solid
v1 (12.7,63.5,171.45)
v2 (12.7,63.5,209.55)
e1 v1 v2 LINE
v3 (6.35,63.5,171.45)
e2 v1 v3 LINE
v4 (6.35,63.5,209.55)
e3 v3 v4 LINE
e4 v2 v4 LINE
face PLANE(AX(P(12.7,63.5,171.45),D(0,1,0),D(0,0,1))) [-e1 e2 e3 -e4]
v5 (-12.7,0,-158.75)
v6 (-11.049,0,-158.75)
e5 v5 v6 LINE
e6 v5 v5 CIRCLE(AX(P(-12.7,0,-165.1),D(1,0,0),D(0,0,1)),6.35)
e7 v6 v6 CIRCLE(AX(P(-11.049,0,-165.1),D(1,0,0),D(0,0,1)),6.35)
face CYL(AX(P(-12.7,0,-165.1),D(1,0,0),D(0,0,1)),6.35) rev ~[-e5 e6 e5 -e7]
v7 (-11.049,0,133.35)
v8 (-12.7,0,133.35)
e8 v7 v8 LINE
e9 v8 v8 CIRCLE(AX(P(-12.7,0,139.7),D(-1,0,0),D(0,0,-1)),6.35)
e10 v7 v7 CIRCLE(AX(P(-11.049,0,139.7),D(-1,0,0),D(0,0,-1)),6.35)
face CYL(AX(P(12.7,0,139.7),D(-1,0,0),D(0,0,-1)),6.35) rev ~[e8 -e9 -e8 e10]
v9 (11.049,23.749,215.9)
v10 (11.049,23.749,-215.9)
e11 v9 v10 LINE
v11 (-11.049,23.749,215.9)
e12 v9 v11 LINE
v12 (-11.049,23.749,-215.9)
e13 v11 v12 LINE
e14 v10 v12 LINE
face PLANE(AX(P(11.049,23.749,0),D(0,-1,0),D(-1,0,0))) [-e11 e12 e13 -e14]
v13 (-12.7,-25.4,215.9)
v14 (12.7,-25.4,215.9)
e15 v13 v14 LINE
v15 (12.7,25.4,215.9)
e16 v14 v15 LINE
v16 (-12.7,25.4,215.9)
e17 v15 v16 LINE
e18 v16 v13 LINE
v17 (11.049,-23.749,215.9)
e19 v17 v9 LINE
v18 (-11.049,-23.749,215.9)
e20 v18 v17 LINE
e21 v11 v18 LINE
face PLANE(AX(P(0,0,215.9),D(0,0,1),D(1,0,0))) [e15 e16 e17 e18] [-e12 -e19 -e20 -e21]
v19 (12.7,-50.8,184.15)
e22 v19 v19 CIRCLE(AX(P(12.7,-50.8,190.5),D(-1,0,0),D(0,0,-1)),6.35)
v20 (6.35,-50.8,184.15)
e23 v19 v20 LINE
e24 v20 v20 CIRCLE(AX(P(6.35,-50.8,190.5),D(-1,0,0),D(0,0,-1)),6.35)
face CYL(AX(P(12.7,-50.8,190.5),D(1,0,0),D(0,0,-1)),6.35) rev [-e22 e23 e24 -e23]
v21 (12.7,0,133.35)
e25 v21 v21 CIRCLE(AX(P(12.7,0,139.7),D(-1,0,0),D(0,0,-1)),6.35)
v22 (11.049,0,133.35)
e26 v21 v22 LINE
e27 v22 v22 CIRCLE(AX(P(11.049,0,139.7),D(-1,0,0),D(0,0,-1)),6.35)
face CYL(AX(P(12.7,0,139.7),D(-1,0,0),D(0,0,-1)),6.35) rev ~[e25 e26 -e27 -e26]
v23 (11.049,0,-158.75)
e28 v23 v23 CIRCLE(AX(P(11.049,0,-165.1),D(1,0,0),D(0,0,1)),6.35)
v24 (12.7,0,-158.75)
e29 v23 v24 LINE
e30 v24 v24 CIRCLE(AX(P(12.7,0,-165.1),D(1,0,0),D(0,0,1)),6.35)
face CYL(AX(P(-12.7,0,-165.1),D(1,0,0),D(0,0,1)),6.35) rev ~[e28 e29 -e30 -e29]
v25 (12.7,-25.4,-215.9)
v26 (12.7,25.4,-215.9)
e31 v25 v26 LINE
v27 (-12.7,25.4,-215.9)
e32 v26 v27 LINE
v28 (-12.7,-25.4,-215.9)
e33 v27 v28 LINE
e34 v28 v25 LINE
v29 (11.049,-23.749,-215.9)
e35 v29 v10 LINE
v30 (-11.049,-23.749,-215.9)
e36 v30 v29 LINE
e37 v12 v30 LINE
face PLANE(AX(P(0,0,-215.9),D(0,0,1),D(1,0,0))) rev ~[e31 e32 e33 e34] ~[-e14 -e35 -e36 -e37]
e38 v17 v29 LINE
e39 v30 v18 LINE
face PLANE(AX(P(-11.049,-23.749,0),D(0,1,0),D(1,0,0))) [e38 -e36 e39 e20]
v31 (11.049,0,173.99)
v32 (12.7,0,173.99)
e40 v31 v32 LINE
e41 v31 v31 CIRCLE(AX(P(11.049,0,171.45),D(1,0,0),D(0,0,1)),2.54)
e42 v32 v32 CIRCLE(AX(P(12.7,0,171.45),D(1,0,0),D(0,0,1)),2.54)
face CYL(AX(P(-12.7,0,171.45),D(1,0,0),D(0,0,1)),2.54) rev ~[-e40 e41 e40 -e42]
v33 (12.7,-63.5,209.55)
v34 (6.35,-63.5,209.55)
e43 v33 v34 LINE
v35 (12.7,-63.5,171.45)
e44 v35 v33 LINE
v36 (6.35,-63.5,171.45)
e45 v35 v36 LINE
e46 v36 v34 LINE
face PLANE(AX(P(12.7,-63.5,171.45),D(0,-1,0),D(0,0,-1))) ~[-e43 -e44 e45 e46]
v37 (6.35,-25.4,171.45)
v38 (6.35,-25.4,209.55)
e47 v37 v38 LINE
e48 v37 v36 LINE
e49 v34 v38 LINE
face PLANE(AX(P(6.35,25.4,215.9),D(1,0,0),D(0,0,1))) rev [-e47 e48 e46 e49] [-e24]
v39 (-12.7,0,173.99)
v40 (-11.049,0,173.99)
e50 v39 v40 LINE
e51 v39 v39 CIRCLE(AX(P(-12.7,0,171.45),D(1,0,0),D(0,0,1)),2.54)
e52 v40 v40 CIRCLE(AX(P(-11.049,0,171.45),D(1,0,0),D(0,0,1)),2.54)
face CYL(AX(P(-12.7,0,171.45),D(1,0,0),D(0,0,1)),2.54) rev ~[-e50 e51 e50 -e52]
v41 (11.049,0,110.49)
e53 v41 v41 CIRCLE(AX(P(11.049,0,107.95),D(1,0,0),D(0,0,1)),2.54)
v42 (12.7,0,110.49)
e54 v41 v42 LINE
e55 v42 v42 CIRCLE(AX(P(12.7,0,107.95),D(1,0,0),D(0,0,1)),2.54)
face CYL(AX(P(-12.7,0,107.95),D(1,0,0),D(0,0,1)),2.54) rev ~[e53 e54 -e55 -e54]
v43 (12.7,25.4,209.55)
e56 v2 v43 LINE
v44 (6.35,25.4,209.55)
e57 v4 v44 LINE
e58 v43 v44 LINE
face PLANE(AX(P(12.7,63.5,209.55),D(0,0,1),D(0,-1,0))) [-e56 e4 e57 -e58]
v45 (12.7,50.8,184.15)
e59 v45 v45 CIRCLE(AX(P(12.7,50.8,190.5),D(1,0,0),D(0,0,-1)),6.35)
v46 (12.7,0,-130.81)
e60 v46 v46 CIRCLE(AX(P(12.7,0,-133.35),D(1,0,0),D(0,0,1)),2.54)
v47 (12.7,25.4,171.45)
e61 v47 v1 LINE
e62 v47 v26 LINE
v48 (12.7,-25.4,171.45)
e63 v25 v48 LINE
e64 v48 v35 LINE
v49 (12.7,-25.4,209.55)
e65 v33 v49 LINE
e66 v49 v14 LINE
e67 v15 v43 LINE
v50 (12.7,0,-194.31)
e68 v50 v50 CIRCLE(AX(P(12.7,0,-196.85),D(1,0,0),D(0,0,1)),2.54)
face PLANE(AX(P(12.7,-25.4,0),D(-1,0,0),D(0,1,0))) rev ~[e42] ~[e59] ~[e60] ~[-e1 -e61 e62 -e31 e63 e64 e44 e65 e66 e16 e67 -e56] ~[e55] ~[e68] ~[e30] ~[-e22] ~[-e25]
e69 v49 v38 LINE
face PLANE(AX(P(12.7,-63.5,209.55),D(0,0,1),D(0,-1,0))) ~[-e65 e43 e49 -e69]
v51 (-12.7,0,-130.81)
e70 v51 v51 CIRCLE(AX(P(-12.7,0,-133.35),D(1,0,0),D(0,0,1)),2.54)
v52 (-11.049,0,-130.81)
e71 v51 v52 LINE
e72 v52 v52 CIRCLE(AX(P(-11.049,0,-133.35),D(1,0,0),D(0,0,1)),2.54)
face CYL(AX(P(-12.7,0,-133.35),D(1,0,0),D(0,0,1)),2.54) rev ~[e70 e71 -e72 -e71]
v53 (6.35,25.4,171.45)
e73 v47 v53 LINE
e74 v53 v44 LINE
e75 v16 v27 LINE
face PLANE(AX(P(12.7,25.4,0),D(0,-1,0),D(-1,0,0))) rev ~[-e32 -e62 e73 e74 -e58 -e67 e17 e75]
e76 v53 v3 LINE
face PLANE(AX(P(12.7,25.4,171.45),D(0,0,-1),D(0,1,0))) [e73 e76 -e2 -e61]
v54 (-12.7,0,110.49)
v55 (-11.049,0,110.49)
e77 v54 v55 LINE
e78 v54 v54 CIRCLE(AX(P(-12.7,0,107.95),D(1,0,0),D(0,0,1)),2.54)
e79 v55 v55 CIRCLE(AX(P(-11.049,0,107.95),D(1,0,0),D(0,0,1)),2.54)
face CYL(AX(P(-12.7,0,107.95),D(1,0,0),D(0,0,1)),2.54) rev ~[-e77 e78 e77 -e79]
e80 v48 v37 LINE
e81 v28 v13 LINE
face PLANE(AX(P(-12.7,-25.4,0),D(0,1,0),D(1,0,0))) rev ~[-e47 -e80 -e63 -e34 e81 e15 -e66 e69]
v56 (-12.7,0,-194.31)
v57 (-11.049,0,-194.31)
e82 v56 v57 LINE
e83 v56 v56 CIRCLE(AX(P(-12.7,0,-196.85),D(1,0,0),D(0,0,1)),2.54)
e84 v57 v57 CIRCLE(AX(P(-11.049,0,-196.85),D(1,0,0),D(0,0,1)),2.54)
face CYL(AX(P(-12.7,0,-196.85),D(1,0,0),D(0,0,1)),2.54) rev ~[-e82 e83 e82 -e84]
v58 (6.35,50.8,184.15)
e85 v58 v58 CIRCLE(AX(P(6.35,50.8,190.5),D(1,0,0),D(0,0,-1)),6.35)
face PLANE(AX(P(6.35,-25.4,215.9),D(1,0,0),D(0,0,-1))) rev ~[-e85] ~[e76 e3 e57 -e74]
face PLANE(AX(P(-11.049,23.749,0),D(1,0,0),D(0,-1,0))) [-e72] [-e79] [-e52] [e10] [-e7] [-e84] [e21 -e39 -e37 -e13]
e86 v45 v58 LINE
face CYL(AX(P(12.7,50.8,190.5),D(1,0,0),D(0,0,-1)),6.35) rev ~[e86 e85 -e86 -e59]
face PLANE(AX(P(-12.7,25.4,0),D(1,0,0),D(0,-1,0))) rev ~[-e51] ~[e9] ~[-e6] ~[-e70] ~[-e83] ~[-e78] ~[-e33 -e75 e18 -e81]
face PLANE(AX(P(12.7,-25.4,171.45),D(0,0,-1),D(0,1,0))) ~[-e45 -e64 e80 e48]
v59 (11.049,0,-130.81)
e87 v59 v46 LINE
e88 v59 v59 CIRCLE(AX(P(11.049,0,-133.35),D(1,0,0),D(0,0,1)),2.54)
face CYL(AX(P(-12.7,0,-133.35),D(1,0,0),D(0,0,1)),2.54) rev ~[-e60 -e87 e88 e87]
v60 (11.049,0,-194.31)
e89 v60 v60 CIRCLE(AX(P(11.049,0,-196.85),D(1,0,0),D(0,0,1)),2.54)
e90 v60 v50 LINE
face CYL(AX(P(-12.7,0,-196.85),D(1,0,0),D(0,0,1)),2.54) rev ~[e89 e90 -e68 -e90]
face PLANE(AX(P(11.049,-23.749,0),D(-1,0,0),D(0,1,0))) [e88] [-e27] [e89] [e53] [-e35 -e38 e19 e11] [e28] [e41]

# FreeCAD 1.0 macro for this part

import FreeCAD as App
import Part
import Sketcher
Q = App.Units.Quantity


def add_polygon(sketch, points):
    """Adds a closed chain of lines whose ends are joined by coincident constraints."""
    first, n = sketch.GeometryCount, len(points)
    for a, b in zip(points, points[1:] + points[:1]):
        sketch.addGeometry(Part.LineSegment(App.Vector(*a, 0), App.Vector(*b, 0)), False)
    for i in range(n):
        sketch.addConstraint(Sketcher.Constraint("Coincident", first + i, 2, first + (i + 1) % n, 1))

doc = App.newDocument("Part")
body = doc.addObject("PartDesign::Body", "Body")

# Sketch on XY plane
sketch1 = doc.addObject("Sketcher::SketchObject", "Sketch")
body.addObject(sketch1)
sketch1.AttachmentSupport = (doc.XY_Plane, [""])
sketch1.MapMode = "FlatFace"
add_polygon(sketch1, [(-13, 25), (-13, -25), (13, -25), (13, 25)])  # lines 0-3
add_polygon(sketch1, [(11, -24), (-11, -24), (-11, 24), (11, 24)])  # lines 4-7
sketch1.addConstraint([
    Sketcher.Constraint("Vertical", 0),
    Sketcher.Constraint("Horizontal", 1),
    Sketcher.Constraint("Vertical", 2),
    Sketcher.Constraint("Horizontal", 3),
    Sketcher.Constraint("Horizontal", 4),
    Sketcher.Constraint("Vertical", 5),
    Sketcher.Constraint("Horizontal", 6),
    Sketcher.Constraint("Vertical", 7),
    Sketcher.Constraint("Symmetric", 0, 2, 2, 2, -1, 1),
    Sketcher.Constraint("Symmetric", 4, 2, 6, 2, -1, 1),
    Sketcher.Constraint("DistanceX", 1, 1, 1, 2, Q("1 in")),
    Sketcher.Constraint("DistanceY", 0, 2, 0, 1, Q("2 in")),
    Sketcher.Constraint("DistanceX", 4, 2, 4, 1, Q("0.87 in")),
    Sketcher.Constraint("DistanceY", 5, 1, 5, 2, Q("1.87 in")),
])
pad1 = doc.addObject("PartDesign::Pad", "Pad")
body.addObject(pad1)
pad1.Profile = sketch1
pad1.Length = Q("17 in")
pad1.Midplane = True

# Sketch on YZ plane
sketch2 = doc.addObject("Sketcher::SketchObject", "Sketch001")
body.addObject(sketch2)
sketch2.AttachmentSupport = (doc.YZ_Plane, [""])
sketch2.MapMode = "FlatFace"
sketch2.AttachmentOffset = App.Placement(App.Vector(0, 0, 0.5 * 25.4), App.Rotation())
sketch2.addGeometry(Part.Circle(App.Vector(0, 140, 0), App.Vector(0, 0, 1), 6), False)
sketch2.addConstraint([
    Sketcher.Constraint("PointOnObject", 0, 3, -2),
    Sketcher.Constraint("Diameter", 0, Q("0.5 in")),
    Sketcher.Constraint("DistanceY", -1, 1, 0, 3, Q("5.5 in")),
])
doc.recompute()
hole = doc.addObject("PartDesign::Hole", "Hole")
body.addObject(hole)
hole.Profile = sketch2
hole.ThreadType = "None"
hole.Diameter = Q("0.5 in")
hole.DepthType = "ThroughAll"

# Sketch on YZ plane
sketch3 = doc.addObject("Sketcher::SketchObject", "Sketch002")
body.addObject(sketch3)
sketch3.AttachmentSupport = (doc.YZ_Plane, [""])
sketch3.MapMode = "FlatFace"
sketch3.AttachmentOffset = App.Placement(App.Vector(0, 0, -0.5 * 25.4), App.Rotation())
sketch3.addGeometry(Part.Circle(App.Vector(0, -165, 0), App.Vector(0, 0, 1), 6), False)
sketch3.addConstraint([
    Sketcher.Constraint("PointOnObject", 0, 3, -2),
    Sketcher.Constraint("Diameter", 0, Q("0.5 in")),
    Sketcher.Constraint("DistanceY", 0, 3, -1, 1, Q("6.5 in")),
])
doc.recompute()
hole2 = doc.addObject("PartDesign::Hole", "Hole001")
body.addObject(hole2)
hole2.Profile = sketch3
hole2.ThreadType = "None"
hole2.Diameter = Q("0.5 in")
hole2.DepthType = "ThroughAll"
hole2.Reversed = True

# Sketch on YZ plane
sketch4 = doc.addObject("Sketcher::SketchObject", "Sketch003")
body.addObject(sketch4)
sketch4.AttachmentSupport = (doc.YZ_Plane, [""])
sketch4.MapMode = "FlatFace"
sketch4.AttachmentOffset = App.Placement(App.Vector(0, 0, -0.5 * 25.4), App.Rotation())
sketch4.addGeometry([
    Part.Circle(App.Vector(0, -133.3, 0), App.Vector(0, 0, 1), 2.5),
    Part.Circle(App.Vector(0, -196.8, 0), App.Vector(0, 0, 1), 2.5),
], False)
sketch4.addConstraint([
    Sketcher.Constraint("Equal", 0, 1),
    Sketcher.Constraint("PointOnObject", 0, 3, -2),
    Sketcher.Constraint("PointOnObject", 1, 3, -2),
    Sketcher.Constraint("Diameter", 0, Q("0.2 in")),
    Sketcher.Constraint("DistanceY", 1, 3, 0, 3, Q("2.5 in")),
    Sketcher.Constraint("DistanceY", 0, 3, -1, 1, Q("5.25 in")),
])
doc.recompute()
hole3 = doc.addObject("PartDesign::Hole", "Hole002")
body.addObject(hole3)
hole3.Profile = sketch4
hole3.ThreadType = "None"
hole3.Diameter = Q("0.2 in")
hole3.DepthType = "ThroughAll"
hole3.Reversed = True

# Sketch on YZ plane
sketch5 = doc.addObject("Sketcher::SketchObject", "Sketch004")
body.addObject(sketch5)
sketch5.AttachmentSupport = (doc.YZ_Plane, [""])
sketch5.MapMode = "FlatFace"
sketch5.AttachmentOffset = App.Placement(App.Vector(0, 0, 0.5 * 25.4), App.Rotation())
add_polygon(sketch5, [(25, 210), (25, 171), (64, 171), (64, 210)])  # lines 0-3
sketch5.addGeometry(Part.Circle(App.Vector(51, 190, 0), App.Vector(0, 0, 1), 6), False)  # 4
sketch5.addConstraint([
    Sketcher.Constraint("Vertical", 0),
    Sketcher.Constraint("Horizontal", 1),
    Sketcher.Constraint("Vertical", 2),
    Sketcher.Constraint("Horizontal", 3),
    Sketcher.Constraint("Equal", 3, 0),
    Sketcher.Constraint("Diameter", 4, Q("0.5 in")),
    Sketcher.Constraint("DistanceX", 1, 1, 1, 2, Q("1.5 in")),
    Sketcher.Constraint("DistanceX", -1, 1, 0, 2, Q("1 in")),
    Sketcher.Constraint("DistanceX", 0, 2, 4, 3, Q("1 in")),
    Sketcher.Constraint("DistanceY", 0, 2, 4, 3, Q("0.75 in")),
    Sketcher.Constraint("DistanceY", -1, 1, 4, 3, Q("7.5 in")),
])
pad2 = doc.addObject("PartDesign::Pad", "Pad001")
body.addObject(pad2)
pad2.Profile = sketch5
pad2.Length = Q("0.25 in")
pad2.Reversed = True
doc.recompute()

mirrored = doc.addObject("PartDesign::Mirrored", "Mirrored")
body.addObject(mirrored)
mirrored.Originals = [pad2]
mirrored.MirrorPlane = (doc.XZ_Plane, [""])
body.Tip = mirrored
doc.recompute()

linearpattern = doc.addObject("PartDesign::LinearPattern", "LinearPattern")
body.addObject(linearpattern)
linearpattern.Originals = [hole3]
linearpattern.Direction = (doc.Z_Axis, [""])
linearpattern.Mode = "offset"
linearpattern.Offset = Q("12 in")
linearpattern.Occurrences = 2
body.Tip = linearpattern

doc.recompute()
